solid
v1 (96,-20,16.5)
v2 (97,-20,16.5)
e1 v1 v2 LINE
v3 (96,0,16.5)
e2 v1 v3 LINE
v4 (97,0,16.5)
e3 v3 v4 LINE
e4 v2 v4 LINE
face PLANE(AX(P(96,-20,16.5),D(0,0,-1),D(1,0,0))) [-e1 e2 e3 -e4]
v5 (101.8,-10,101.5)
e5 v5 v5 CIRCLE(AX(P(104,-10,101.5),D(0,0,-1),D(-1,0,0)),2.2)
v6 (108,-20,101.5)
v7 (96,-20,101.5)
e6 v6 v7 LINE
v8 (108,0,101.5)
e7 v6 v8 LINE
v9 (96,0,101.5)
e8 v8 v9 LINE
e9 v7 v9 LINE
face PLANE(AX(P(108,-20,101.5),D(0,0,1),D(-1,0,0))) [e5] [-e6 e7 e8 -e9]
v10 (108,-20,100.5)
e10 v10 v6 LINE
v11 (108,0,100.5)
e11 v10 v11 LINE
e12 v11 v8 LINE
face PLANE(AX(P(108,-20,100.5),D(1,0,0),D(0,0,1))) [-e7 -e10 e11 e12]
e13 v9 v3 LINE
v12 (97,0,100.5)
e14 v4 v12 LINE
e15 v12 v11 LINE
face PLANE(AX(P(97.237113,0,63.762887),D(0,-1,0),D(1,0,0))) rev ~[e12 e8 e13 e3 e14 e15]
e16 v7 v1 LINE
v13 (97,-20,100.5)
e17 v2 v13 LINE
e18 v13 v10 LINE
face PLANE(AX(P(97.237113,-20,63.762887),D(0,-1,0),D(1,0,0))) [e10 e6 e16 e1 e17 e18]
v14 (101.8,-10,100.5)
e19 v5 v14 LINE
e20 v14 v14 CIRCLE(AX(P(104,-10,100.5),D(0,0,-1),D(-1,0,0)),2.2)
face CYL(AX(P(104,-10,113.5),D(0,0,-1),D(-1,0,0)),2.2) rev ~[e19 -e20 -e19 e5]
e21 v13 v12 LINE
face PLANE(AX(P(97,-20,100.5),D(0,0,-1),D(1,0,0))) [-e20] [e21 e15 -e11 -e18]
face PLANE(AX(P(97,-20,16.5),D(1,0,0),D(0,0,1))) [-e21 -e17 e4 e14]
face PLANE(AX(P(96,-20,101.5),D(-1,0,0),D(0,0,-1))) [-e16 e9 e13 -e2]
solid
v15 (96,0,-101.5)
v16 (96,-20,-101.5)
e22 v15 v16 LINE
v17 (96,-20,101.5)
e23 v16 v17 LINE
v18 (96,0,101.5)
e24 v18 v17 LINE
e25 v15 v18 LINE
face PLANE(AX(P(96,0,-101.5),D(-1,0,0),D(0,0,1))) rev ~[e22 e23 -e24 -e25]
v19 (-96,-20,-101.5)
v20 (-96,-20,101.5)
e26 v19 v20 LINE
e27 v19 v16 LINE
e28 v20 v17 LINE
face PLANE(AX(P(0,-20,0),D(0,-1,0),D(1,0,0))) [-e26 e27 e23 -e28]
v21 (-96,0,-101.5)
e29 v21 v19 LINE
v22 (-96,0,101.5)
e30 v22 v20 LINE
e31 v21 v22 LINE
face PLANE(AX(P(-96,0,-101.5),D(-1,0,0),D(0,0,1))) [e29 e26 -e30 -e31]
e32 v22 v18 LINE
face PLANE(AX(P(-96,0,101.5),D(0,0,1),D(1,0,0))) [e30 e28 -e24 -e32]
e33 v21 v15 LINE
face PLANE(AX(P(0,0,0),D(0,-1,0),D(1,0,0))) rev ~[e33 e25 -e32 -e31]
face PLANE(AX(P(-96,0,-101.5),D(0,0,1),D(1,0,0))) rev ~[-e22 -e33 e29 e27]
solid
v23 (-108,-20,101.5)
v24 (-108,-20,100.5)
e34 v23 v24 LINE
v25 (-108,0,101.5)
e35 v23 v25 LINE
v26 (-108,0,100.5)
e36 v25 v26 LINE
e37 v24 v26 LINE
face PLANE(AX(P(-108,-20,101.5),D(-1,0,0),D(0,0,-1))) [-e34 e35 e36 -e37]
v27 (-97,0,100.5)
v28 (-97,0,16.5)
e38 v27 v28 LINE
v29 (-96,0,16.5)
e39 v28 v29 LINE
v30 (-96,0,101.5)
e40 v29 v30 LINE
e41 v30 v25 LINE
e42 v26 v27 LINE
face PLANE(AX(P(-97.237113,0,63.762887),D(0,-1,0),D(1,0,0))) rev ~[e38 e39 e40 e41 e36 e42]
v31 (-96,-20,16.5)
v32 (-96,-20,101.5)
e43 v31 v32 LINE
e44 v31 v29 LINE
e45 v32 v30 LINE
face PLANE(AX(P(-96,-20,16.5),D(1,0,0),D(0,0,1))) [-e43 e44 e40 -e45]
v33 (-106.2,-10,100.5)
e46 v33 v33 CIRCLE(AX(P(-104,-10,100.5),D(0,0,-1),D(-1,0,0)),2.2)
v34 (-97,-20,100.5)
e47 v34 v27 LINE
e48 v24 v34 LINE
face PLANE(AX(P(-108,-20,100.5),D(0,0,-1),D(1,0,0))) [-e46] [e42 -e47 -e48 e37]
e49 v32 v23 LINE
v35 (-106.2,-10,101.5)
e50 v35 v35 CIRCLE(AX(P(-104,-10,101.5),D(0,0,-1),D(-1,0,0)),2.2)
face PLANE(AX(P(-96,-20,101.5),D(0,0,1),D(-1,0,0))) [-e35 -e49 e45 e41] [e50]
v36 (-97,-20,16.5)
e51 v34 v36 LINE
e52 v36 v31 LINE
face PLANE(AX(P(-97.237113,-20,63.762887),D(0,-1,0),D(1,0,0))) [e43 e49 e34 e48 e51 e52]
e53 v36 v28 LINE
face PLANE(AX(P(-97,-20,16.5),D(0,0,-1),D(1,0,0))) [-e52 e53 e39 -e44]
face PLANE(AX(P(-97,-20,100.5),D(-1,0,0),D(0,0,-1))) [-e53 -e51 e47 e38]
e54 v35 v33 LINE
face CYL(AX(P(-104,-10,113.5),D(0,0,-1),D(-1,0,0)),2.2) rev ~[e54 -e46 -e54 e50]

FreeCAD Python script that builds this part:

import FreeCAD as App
import Part
import Sketcher

V = App.Vector
Q = App.Units.Quantity

doc = App.newDocument("Part")
body = doc.addObject("PartDesign::Body", "Body")

# Sketch on XZ plane
sketch1 = doc.addObject("Sketcher::SketchObject", "Sketch")
body.addObject(sketch1)
sketch1.AttachmentSupport = (doc.XZ_Plane, [""])
sketch1.MapMode = "FlatFace"
sketch1.addGeometry(Part.LineSegment(V(-96, 102, 0), V(-96, -102, 0)), False)
sketch1.addGeometry(Part.LineSegment(V(-96, -102, 0), V(96, -102, 0)), False)
sketch1.addGeometry(Part.LineSegment(V(96, -102, 0), V(96, 102, 0)), False)
sketch1.addGeometry(Part.LineSegment(V(96, 102, 0), V(-96, 102, 0)), False)
sketch1.addConstraint(Sketcher.Constraint("Coincident", 0, 2, 1, 1))
sketch1.addConstraint(Sketcher.Constraint("Coincident", 1, 2, 2, 1))
sketch1.addConstraint(Sketcher.Constraint("Coincident", 2, 2, 3, 1))
sketch1.addConstraint(Sketcher.Constraint("Coincident", 3, 2, 0, 1))
sketch1.addConstraint(Sketcher.Constraint("Vertical", 0))
sketch1.addConstraint(Sketcher.Constraint("Horizontal", 1))
sketch1.addConstraint(Sketcher.Constraint("Vertical", 2))
sketch1.addConstraint(Sketcher.Constraint("Horizontal", 3))
sketch1.addConstraint(Sketcher.Constraint("Symmetric", 0, 2, 2, 2, -1, 1))
sketch1.addConstraint(Sketcher.Constraint("DistanceX", 1, 1, 1, 2, Q("192 mm")))
sketch1.addConstraint(Sketcher.Constraint("DistanceY", 0, 2, 0, 1, Q("203 mm")))
pad1 = doc.addObject("PartDesign::Pad", "Pad")
body.addObject(pad1)
pad1.Profile = sketch1
pad1.Length = 20
body2 = doc.addObject("PartDesign::Body", "Body001")

# Sketch on XZ plane
sketch2 = doc.addObject("Sketcher::SketchObject", "Sketch001")
body2.addObject(sketch2)
sketch2.AttachmentSupport = (doc.getObject("XZ_Plane001"), [""])
sketch2.MapMode = "FlatFace"
sketch2.AttachmentOffset = App.Placement(V(0, 0, 20), App.Rotation())
sketch2.addGeometry(Part.LineSegment(V(-96, 16.5, 0), V(-96, 101.5, 0)), False)
sketch2.addGeometry(Part.LineSegment(V(-96, 101.5, 0), V(-108, 101.5, 0)), False)
sketch2.addGeometry(Part.LineSegment(V(-108, 101.5, 0), V(-108, 100.5, 0)), False)
sketch2.addGeometry(Part.LineSegment(V(-108, 100.5, 0), V(-97, 100.5, 0)), False)
sketch2.addGeometry(Part.LineSegment(V(-97, 100.5, 0), V(-97, 16.5, 0)), False)
sketch2.addGeometry(Part.LineSegment(V(-97, 16.5, 0), V(-96, 16.5, 0)), False)
sketch2.addConstraint(Sketcher.Constraint("Coincident", 0, 2, 1, 1))
sketch2.addConstraint(Sketcher.Constraint("Coincident", 1, 2, 2, 1))
sketch2.addConstraint(Sketcher.Constraint("Coincident", 2, 2, 3, 1))
sketch2.addConstraint(Sketcher.Constraint("Coincident", 3, 2, 4, 1))
sketch2.addConstraint(Sketcher.Constraint("Coincident", 4, 2, 5, 1))
sketch2.addConstraint(Sketcher.Constraint("Coincident", 5, 2, 0, 1))
sketch2.addConstraint(Sketcher.Constraint("Vertical", 0))
sketch2.addConstraint(Sketcher.Constraint("Horizontal", 1))
sketch2.addConstraint(Sketcher.Constraint("Vertical", 2))
sketch2.addConstraint(Sketcher.Constraint("Horizontal", 3))
sketch2.addConstraint(Sketcher.Constraint("Vertical", 4))
sketch2.addConstraint(Sketcher.Constraint("Horizontal", 5))
sketch2.addConstraint(Sketcher.Constraint("Equal", 5, 2))
sketch2.addConstraint(Sketcher.Constraint("DistanceX", 1, 2, 1, 1, Q("12 mm")))
sketch2.addConstraint(Sketcher.Constraint("DistanceX", 3, 1, 3, 2, Q("11 mm")))
sketch2.addConstraint(Sketcher.Constraint("DistanceY", 0, 1, 0, 2, Q("85 mm")))
sketch2.addConstraint(Sketcher.Constraint("DistanceX", 0, 2, -1, 1, Q("96 mm")))
sketch2.addConstraint(Sketcher.Constraint("DistanceY", -1, 1, 0, 2, Q("101.5 mm")))
pad2 = doc.addObject("PartDesign::Pad", "Pad001")
body2.addObject(pad2)
pad2.Profile = sketch2
pad2.Length = 20
pad2.Reversed = True

# Sketch on XY plane
sketch3 = doc.addObject("Sketcher::SketchObject", "Sketch002")
body2.addObject(sketch3)
sketch3.AttachmentSupport = (doc.getObject("XY_Plane001"), [""])
sketch3.MapMode = "FlatFace"
sketch3.AttachmentOffset = App.Placement(V(0, 0, 101.5), App.Rotation())
sketch3.addGeometry(Part.Circle(V(-104, -10, 0), V(0, 0, 1), 2.2), False)
sketch3.addGeometry(Part.Circle(V(104, -10, 0), V(0, 0, 1), 2.2), False)
sketch3.addConstraint(Sketcher.Constraint("Equal", 0, 1))
sketch3.addConstraint(Sketcher.Constraint("Symmetric", 0, 3, 1, 3, -2))
sketch3.addConstraint(Sketcher.Constraint("Diameter", 0, Q("4.4 mm")))
sketch3.addConstraint(Sketcher.Constraint("DistanceX", 0, 3, -1, 1, Q("104 mm")))
sketch3.addConstraint(Sketcher.Constraint("DistanceY", 0, 3, -1, 1, Q("10 mm")))
doc.recompute()
hole = doc.addObject("PartDesign::Hole", "Hole")
body2.addObject(hole)
hole.Profile = sketch3
hole.ThreadType = "None"
hole.Diameter = 4.4
hole.DepthType = "Dimension"
hole.Depth = 12
hole.DrillPoint = "Angled"
hole.DrillPointAngle = 118
body3 = doc.addObject("PartDesign::Body", "Body002")

# Sketch on XZ plane
sketch4 = doc.addObject("Sketcher::SketchObject", "Sketch003")
body3.addObject(sketch4)
sketch4.AttachmentSupport = (doc.getObject("XZ_Plane002"), [""])
sketch4.MapMode = "FlatFace"
sketch4.AttachmentOffset = App.Placement(V(0, 0, 20), App.Rotation())
sketch4.addGeometry(Part.LineSegment(V(108, 100.5, 0), V(108, 101.5, 0)), False)
sketch4.addGeometry(Part.LineSegment(V(108, 101.5, 0), V(96, 101.5, 0)), False)
sketch4.addGeometry(Part.LineSegment(V(96, 101.5, 0), V(96, 16.5, 0)), False)
sketch4.addGeometry(Part.LineSegment(V(96, 16.5, 0), V(97, 16.5, 0)), False)
sketch4.addGeometry(Part.LineSegment(V(97, 16.5, 0), V(97, 100.5, 0)), False)
sketch4.addGeometry(Part.LineSegment(V(97, 100.5, 0), V(108, 100.5, 0)), False)
sketch4.addConstraint(Sketcher.Constraint("Coincident", 0, 2, 1, 1))
sketch4.addConstraint(Sketcher.Constraint("Coincident", 1, 2, 2, 1))
sketch4.addConstraint(Sketcher.Constraint("Coincident", 2, 2, 3, 1))
sketch4.addConstraint(Sketcher.Constraint("Coincident", 3, 2, 4, 1))
sketch4.addConstraint(Sketcher.Constraint("Coincident", 4, 2, 5, 1))
sketch4.addConstraint(Sketcher.Constraint("Coincident", 5, 2, 0, 1))
sketch4.addConstraint(Sketcher.Constraint("Vertical", 0))
sketch4.addConstraint(Sketcher.Constraint("Horizontal", 1))
sketch4.addConstraint(Sketcher.Constraint("Vertical", 2))
sketch4.addConstraint(Sketcher.Constraint("Horizontal", 3))
sketch4.addConstraint(Sketcher.Constraint("Vertical", 4))
sketch4.addConstraint(Sketcher.Constraint("Horizontal", 5))
sketch4.addConstraint(Sketcher.Constraint("Equal", 3, 0))
sketch4.addConstraint(Sketcher.Constraint("DistanceX", 1, 2, 1, 1, Q("12 mm")))
sketch4.addConstraint(Sketcher.Constraint("DistanceX", 3, 1, 3, 2, Q("1 mm")))
sketch4.addConstraint(Sketcher.Constraint("DistanceY", 2, 2, 2, 1, Q("85 mm")))
sketch4.addConstraint(Sketcher.Constraint("DistanceX", -1, 1, 0, 2, Q("108 mm")))
sketch4.addConstraint(Sketcher.Constraint("DistanceY", -1, 1, 0, 2, Q("101.5 mm")))
pad3 = doc.addObject("PartDesign::Pad", "Pad002")
body3.addObject(pad3)
pad3.Profile = sketch4
pad3.Length = 20
pad3.Reversed = True

# Sketch on XY plane
sketch5 = doc.addObject("Sketcher::SketchObject", "Sketch004")
body3.addObject(sketch5)
sketch5.AttachmentSupport = (doc.getObject("XY_Plane002"), [""])
sketch5.MapMode = "FlatFace"
sketch5.AttachmentOffset = App.Placement(V(0, 0, 101.5), App.Rotation())
sketch5.addGeometry(Part.Circle(V(-104, -10, 0), V(0, 0, 1), 2.2), False)
sketch5.addGeometry(Part.Circle(V(104, -10, 0), V(0, 0, 1), 2.2), False)
sketch5.addConstraint(Sketcher.Constraint("Equal", 0, 1))
sketch5.addConstraint(Sketcher.Constraint("Symmetric", 0, 3, 1, 3, -2))
sketch5.addConstraint(Sketcher.Constraint("Diameter", 0, Q("4.4 mm")))
sketch5.addConstraint(Sketcher.Constraint("DistanceX", 0, 3, -1, 1, Q("104 mm")))
sketch5.addConstraint(Sketcher.Constraint("DistanceY", 0, 3, -1, 1, Q("10 mm")))
doc.recompute()
hole2 = doc.addObject("PartDesign::Hole", "Hole001")
body3.addObject(hole2)
hole2.Profile = sketch5
hole2.ThreadType = "None"
hole2.Diameter = 4.4
hole2.DepthType = "Dimension"
hole2.Depth = 12
hole2.DrillPoint = "Angled"
hole2.DrillPointAngle = 118

doc.recompute()
